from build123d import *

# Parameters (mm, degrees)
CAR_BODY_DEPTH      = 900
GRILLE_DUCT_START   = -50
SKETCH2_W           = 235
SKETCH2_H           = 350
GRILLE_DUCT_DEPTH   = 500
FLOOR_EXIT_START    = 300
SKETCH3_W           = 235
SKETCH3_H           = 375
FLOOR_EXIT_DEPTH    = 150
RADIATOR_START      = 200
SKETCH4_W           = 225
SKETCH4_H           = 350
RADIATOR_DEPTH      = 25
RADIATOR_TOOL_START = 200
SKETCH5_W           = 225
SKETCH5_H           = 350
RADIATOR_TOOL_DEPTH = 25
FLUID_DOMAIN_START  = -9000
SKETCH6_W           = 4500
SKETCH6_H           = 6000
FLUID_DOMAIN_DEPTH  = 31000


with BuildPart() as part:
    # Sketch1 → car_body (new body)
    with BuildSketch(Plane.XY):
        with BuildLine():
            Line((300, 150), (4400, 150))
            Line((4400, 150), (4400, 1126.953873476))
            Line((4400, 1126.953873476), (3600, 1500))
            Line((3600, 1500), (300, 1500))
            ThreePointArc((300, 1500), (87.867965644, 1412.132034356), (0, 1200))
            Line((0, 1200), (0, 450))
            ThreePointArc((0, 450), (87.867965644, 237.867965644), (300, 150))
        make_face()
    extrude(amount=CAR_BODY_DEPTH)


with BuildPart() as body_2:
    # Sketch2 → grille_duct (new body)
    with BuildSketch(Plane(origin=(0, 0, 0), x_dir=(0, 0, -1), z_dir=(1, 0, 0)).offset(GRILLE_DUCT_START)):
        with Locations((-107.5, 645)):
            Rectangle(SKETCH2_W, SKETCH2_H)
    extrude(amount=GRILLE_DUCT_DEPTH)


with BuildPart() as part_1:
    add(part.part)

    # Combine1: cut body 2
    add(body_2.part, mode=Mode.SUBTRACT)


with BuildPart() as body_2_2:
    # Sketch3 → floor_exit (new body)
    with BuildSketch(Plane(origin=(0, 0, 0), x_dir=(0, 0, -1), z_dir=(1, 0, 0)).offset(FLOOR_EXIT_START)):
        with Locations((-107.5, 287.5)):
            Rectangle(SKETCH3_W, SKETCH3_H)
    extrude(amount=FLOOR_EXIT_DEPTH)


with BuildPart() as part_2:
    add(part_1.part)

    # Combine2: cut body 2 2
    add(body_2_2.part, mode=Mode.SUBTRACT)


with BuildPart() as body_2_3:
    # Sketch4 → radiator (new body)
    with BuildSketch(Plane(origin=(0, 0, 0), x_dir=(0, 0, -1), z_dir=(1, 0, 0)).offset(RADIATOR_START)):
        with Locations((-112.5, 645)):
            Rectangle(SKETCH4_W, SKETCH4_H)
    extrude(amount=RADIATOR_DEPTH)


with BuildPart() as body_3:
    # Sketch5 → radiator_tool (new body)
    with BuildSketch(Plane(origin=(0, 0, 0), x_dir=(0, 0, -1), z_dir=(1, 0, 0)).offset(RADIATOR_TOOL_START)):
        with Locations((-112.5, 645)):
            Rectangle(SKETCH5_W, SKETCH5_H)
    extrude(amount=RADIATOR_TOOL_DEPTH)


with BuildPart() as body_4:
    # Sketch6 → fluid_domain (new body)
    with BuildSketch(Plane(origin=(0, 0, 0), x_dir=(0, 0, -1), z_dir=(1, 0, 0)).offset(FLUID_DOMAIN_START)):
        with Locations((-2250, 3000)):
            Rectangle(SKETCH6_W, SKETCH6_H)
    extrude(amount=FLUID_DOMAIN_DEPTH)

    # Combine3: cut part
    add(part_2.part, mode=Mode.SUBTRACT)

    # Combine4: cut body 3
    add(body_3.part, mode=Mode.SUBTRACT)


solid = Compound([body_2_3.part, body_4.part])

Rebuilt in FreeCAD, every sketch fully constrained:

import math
import FreeCAD as App
import Part
import Sketcher
from FreeCAD import Vector
Q = App.Units.Quantity


def add_polygon(sketch, points):
    """Adds a closed chain of lines whose ends are joined by coincident constraints."""
    first, n = sketch.GeometryCount, len(points)
    for a, b in zip(points, points[1:] + points[:1]):
        sketch.addGeometry(Part.LineSegment(App.Vector(*a, 0), App.Vector(*b, 0)), False)
    for i in range(n):
        sketch.addConstraint(Sketcher.Constraint("Coincident", first + i, 2, first + (i + 1) % n, 1))

doc = App.newDocument("Part")
params = doc.addObject("Spreadsheet::Sheet", "Params")
for row, (alias, value) in enumerate([
    ("sketch1_radius", "300 mm"),
    ("sketch1_width", "4100 mm"),
    ("sketch1_width2", "3300 mm"),
    ("sketch1_height", "750 mm"),
    ("pad1_length", "900 mm"),
    ("sketch2_width", "350 mm"),
    ("sketch2_height", "235 mm"),
    ("pad2_length", "500 mm"),
    ("sketch3_width", "375 mm"),
    ("sketch3_height", "235 mm"),
    ("pad3_length", "150 mm"),
    ("sketch4_width", "350 mm"),
    ("sketch4_height", "225 mm"),
    ("pad4_length", "25 mm"),
    ("sketch5_width", "350 mm"),
    ("sketch5_height", "225 mm"),
    ("pad5_length", "25 mm"),
    ("sketch6_width", "6000 mm"),
    ("sketch6_height", "4500 mm"),
    ("pad6_length", "31000 mm"),
], start=1):
    params.set(f"A{row}", alias)
    params.set(f"B{row}", "=" + value)
    params.setAlias(f"B{row}", alias)

body = doc.addObject("PartDesign::Body", "Body")

# Sketch on XY plane
sketch1 = doc.addObject("Sketcher::SketchObject", "Sketch")
body.addObject(sketch1)
sketch1.AttachmentSupport = (doc.XY_Plane, [""])
sketch1.MapMode = "FlatFace"
sketch1.addGeometry(Part.LineSegment(Vector(300, 150, 0), Vector(4400, 150, 0)), False)
sketch1.addGeometry(Part.LineSegment(Vector(4400, 150, 0), Vector(4400, 1127, 0)), False)
sketch1.addGeometry(Part.LineSegment(Vector(4400, 1127, 0), Vector(3600, 1500, 0)), False)
sketch1.addGeometry(Part.LineSegment(Vector(3600, 1500, 0), Vector(300, 1500, 0)), False)
sketch1.addGeometry(Part.ArcOfCircle(Part.Circle(Vector(300, 1200, 0), Vector(0, 0, 1), 300), math.radians(90), math.radians(180)), False)
sketch1.addGeometry(Part.LineSegment(Vector(0, 1200, 0), Vector(0, 450, 0)), False)
sketch1.addGeometry(Part.ArcOfCircle(Part.Circle(Vector(300, 450, 0), Vector(0, 0, 1), 300), math.radians(180), math.radians(270)), False)
sketch1.addConstraint(Sketcher.Constraint("Coincident", 0, 2, 1, 1))
sketch1.addConstraint(Sketcher.Constraint("Coincident", 1, 2, 2, 1))
sketch1.addConstraint(Sketcher.Constraint("Coincident", 2, 2, 3, 1))
sketch1.addConstraint(Sketcher.Constraint("Tangent", 3, 2, 4, 1))
sketch1.addConstraint(Sketcher.Constraint("Tangent", 4, 2, 5, 1))
sketch1.addConstraint(Sketcher.Constraint("Tangent", 5, 2, 6, 1))
sketch1.addConstraint(Sketcher.Constraint("Tangent", 6, 2, 0, 1))
sketch1.addConstraint(Sketcher.Constraint("Horizontal", 0))
sketch1.addConstraint(Sketcher.Constraint("Vertical", 1))
sketch1.addConstraint(Sketcher.Constraint("Horizontal", 3))
sketch1.addConstraint(Sketcher.Constraint("Vertical", 5))
sketch1.addConstraint(Sketcher.Constraint("Equal", 4, 6))
sketch1.addConstraint(Sketcher.Constraint("PointOnObject", 4, 2, -2))
sketch1.addConstraint(Sketcher.Constraint("Radius", 4, 300.0))
sketch1.addConstraint(Sketcher.Constraint("DistanceX", 0, 1, 0, 2, 4100.0))
sketch1.addConstraint(Sketcher.Constraint("DistanceX", 3, 2, 3, 1, 3300.0))
sketch1.addConstraint(Sketcher.Constraint("DistanceY", 5, 2, 5, 1, 750.0))
sketch1.addConstraint(Sketcher.Constraint("Angle", 2, Q("155 deg")))
sketch1.addConstraint(Sketcher.Constraint("DistanceY", -1, 1, 4, 3, 1200.0))
sketch1.setExpression("Constraints[13]", "Params.sketch1_radius")
sketch1.setExpression("Constraints[14]", "Params.sketch1_width")
sketch1.setExpression("Constraints[15]", "Params.sketch1_width2")
sketch1.setExpression("Constraints[16]", "Params.sketch1_height")
pad1 = doc.addObject("PartDesign::Pad", "Pad")
body.addObject(pad1)
pad1.Profile = sketch1
pad1.setExpression("Length", "Params.pad1_length")
body2 = doc.addObject("PartDesign::Body", "Body001")

# Sketch on YZ plane
sketch2 = doc.addObject("Sketcher::SketchObject", "Sketch001")
body2.addObject(sketch2)
sketch2.AttachmentSupport = (doc.getObject("YZ_Plane001"), [""])
sketch2.MapMode = "FlatFace"
sketch2.AttachmentOffset = App.Placement(Vector(0, 0, -50), App.Rotation())
add_polygon(sketch2, [(820, 225), (470, 225), (470, -10), (820, -10)])  # lines 0-3
sketch2.addConstraint(Sketcher.Constraint("Horizontal", 0))
sketch2.addConstraint(Sketcher.Constraint("Vertical", 1))
sketch2.addConstraint(Sketcher.Constraint("Horizontal", 2))
sketch2.addConstraint(Sketcher.Constraint("Vertical", 3))
sketch2.addConstraint(Sketcher.Constraint("DistanceX", 0, 2, 0, 1, 350.0))
sketch2.addConstraint(Sketcher.Constraint("DistanceY", 1, 2, 1, 1, 235.0))
sketch2.addConstraint(Sketcher.Constraint("DistanceX", -1, 1, 0, 2, 470.0))
sketch2.addConstraint(Sketcher.Constraint("DistanceY", -1, 1, 0, 2, 225.0))
sketch2.setExpression("Constraints[8]", "Params.sketch2_width")
sketch2.setExpression("Constraints[9]", "Params.sketch2_height")
pad2 = doc.addObject("PartDesign::Pad", "Pad001")
body2.addObject(pad2)
pad2.Profile = sketch2
pad2.setExpression("Length", "Params.pad2_length")
doc.recompute()

boolean = doc.addObject("PartDesign::Boolean", "Boolean")
body.addObject(boolean)
boolean.Type = "Cut"
boolean.addObjects([body2])
body3 = doc.addObject("PartDesign::Body", "Body002")

# Sketch on YZ plane
sketch3 = doc.addObject("Sketcher::SketchObject", "Sketch002")
body3.addObject(sketch3)
sketch3.AttachmentSupport = (doc.getObject("YZ_Plane002"), [""])
sketch3.MapMode = "FlatFace"
sketch3.AttachmentOffset = App.Placement(Vector(0, 0, 300), App.Rotation())
add_polygon(sketch3, [(475, 225), (100, 225), (100, -10), (475, -10)])  # lines 0-3
sketch3.addConstraint(Sketcher.Constraint("Horizontal", 0))
sketch3.addConstraint(Sketcher.Constraint("Vertical", 1))
sketch3.addConstraint(Sketcher.Constraint("Horizontal", 2))
sketch3.addConstraint(Sketcher.Constraint("Vertical", 3))
sketch3.addConstraint(Sketcher.Constraint("DistanceX", 0, 2, 0, 1, 375.0))
sketch3.addConstraint(Sketcher.Constraint("DistanceY", 1, 2, 1, 1, 235.0))
sketch3.addConstraint(Sketcher.Constraint("DistanceX", -1, 1, 0, 2, 100.0))
sketch3.addConstraint(Sketcher.Constraint("DistanceY", -1, 1, 0, 2, 225.0))
sketch3.setExpression("Constraints[8]", "Params.sketch3_width")
sketch3.setExpression("Constraints[9]", "Params.sketch3_height")
pad3 = doc.addObject("PartDesign::Pad", "Pad002")
body3.addObject(pad3)
pad3.Profile = sketch3
pad3.setExpression("Length", "Params.pad3_length")
doc.recompute()

boolean2 = doc.addObject("PartDesign::Boolean", "Boolean001")
body.addObject(boolean2)
boolean2.Type = "Cut"
boolean2.addObjects([body3])
body4 = doc.addObject("PartDesign::Body", "Body003")

# Sketch on YZ plane
sketch4 = doc.addObject("Sketcher::SketchObject", "Sketch003")
body4.addObject(sketch4)
sketch4.AttachmentSupport = (doc.getObject("YZ_Plane003"), [""])
sketch4.MapMode = "FlatFace"
sketch4.AttachmentOffset = App.Placement(Vector(0, 0, 200), App.Rotation())
add_polygon(sketch4, [(820, 225), (470, 225), (470, 0), (820, 0)])  # lines 0-3
sketch4.addConstraint(Sketcher.Constraint("Horizontal", 0))
sketch4.addConstraint(Sketcher.Constraint("Vertical", 1))
sketch4.addConstraint(Sketcher.Constraint("Horizontal", 2))
sketch4.addConstraint(Sketcher.Constraint("Vertical", 3))
sketch4.addConstraint(Sketcher.Constraint("PointOnObject", 1, 2, -1))
sketch4.addConstraint(Sketcher.Constraint("DistanceX", 0, 2, 0, 1, 350.0))
sketch4.addConstraint(Sketcher.Constraint("DistanceY", 1, 2, 1, 1, 225.0))
sketch4.addConstraint(Sketcher.Constraint("DistanceX", -1, 1, 0, 2, 470.0))
sketch4.setExpression("Constraints[9]", "Params.sketch4_width")
sketch4.setExpression("Constraints[10]", "Params.sketch4_height")
pad4 = doc.addObject("PartDesign::Pad", "Pad003")
body4.addObject(pad4)
pad4.Profile = sketch4
pad4.setExpression("Length", "Params.pad4_length")
body5 = doc.addObject("PartDesign::Body", "Body004")

# Sketch on YZ plane
sketch5 = doc.addObject("Sketcher::SketchObject", "Sketch004")
body5.addObject(sketch5)
sketch5.AttachmentSupport = (doc.getObject("YZ_Plane004"), [""])
sketch5.MapMode = "FlatFace"
sketch5.AttachmentOffset = App.Placement(Vector(0, 0, 200), App.Rotation())
add_polygon(sketch5, [(820, 225), (470, 225), (470, 0), (820, 0)])  # lines 0-3
sketch5.addConstraint(Sketcher.Constraint("Horizontal", 0))
sketch5.addConstraint(Sketcher.Constraint("Vertical", 1))
sketch5.addConstraint(Sketcher.Constraint("Horizontal", 2))
sketch5.addConstraint(Sketcher.Constraint("Vertical", 3))
sketch5.addConstraint(Sketcher.Constraint("PointOnObject", 1, 2, -1))
sketch5.addConstraint(Sketcher.Constraint("DistanceX", 0, 2, 0, 1, 350.0))
sketch5.addConstraint(Sketcher.Constraint("DistanceY", 1, 2, 1, 1, 225.0))
sketch5.addConstraint(Sketcher.Constraint("DistanceX", -1, 1, 0, 2, 470.0))
sketch5.setExpression("Constraints[9]", "Params.sketch5_width")
sketch5.setExpression("Constraints[10]", "Params.sketch5_height")
pad5 = doc.addObject("PartDesign::Pad", "Pad004")
body5.addObject(pad5)
pad5.Profile = sketch5
pad5.setExpression("Length", "Params.pad5_length")
body6 = doc.addObject("PartDesign::Body", "Body005")

# Sketch on YZ plane
sketch6 = doc.addObject("Sketcher::SketchObject", "Sketch005")
body6.addObject(sketch6)
sketch6.AttachmentSupport = (doc.getObject("YZ_Plane005"), [""])
sketch6.MapMode = "FlatFace"
sketch6.AttachmentOffset = App.Placement(Vector(0, 0, -9000), App.Rotation())
add_polygon(sketch6, [(6000, 4500), (0, 4500), (0, 0), (6000, 0)])  # lines 0-3
sketch6.addConstraint(Sketcher.Constraint("Horizontal", 0))
sketch6.addConstraint(Sketcher.Constraint("Vertical", 1))
sketch6.addConstraint(Sketcher.Constraint("Horizontal", 2))
sketch6.addConstraint(Sketcher.Constraint("Vertical", 3))
sketch6.addConstraint(Sketcher.Constraint("Coincident", 1, 2, -1, 1))
sketch6.addConstraint(Sketcher.Constraint("DistanceX", 0, 2, 0, 1, 6000.0))
sketch6.addConstraint(Sketcher.Constraint("DistanceY", 1, 2, 1, 1, 4500.0))
sketch6.setExpression("Constraints[9]", "Params.sketch6_width")
sketch6.setExpression("Constraints[10]", "Params.sketch6_height")
pad6 = doc.addObject("PartDesign::Pad", "Pad005")
body6.addObject(pad6)
pad6.Profile = sketch6
pad6.setExpression("Length", "Params.pad6_length")
doc.recompute()

boolean3 = doc.addObject("PartDesign::Boolean", "Boolean002")
body6.addObject(boolean3)
boolean3.Type = "Cut"
boolean3.addObjects([body])
doc.recompute()

boolean4 = doc.addObject("PartDesign::Boolean", "Boolean003")
body6.addObject(boolean4)
boolean4.Type = "Cut"
boolean4.addObjects([body5])

doc.recompute()
